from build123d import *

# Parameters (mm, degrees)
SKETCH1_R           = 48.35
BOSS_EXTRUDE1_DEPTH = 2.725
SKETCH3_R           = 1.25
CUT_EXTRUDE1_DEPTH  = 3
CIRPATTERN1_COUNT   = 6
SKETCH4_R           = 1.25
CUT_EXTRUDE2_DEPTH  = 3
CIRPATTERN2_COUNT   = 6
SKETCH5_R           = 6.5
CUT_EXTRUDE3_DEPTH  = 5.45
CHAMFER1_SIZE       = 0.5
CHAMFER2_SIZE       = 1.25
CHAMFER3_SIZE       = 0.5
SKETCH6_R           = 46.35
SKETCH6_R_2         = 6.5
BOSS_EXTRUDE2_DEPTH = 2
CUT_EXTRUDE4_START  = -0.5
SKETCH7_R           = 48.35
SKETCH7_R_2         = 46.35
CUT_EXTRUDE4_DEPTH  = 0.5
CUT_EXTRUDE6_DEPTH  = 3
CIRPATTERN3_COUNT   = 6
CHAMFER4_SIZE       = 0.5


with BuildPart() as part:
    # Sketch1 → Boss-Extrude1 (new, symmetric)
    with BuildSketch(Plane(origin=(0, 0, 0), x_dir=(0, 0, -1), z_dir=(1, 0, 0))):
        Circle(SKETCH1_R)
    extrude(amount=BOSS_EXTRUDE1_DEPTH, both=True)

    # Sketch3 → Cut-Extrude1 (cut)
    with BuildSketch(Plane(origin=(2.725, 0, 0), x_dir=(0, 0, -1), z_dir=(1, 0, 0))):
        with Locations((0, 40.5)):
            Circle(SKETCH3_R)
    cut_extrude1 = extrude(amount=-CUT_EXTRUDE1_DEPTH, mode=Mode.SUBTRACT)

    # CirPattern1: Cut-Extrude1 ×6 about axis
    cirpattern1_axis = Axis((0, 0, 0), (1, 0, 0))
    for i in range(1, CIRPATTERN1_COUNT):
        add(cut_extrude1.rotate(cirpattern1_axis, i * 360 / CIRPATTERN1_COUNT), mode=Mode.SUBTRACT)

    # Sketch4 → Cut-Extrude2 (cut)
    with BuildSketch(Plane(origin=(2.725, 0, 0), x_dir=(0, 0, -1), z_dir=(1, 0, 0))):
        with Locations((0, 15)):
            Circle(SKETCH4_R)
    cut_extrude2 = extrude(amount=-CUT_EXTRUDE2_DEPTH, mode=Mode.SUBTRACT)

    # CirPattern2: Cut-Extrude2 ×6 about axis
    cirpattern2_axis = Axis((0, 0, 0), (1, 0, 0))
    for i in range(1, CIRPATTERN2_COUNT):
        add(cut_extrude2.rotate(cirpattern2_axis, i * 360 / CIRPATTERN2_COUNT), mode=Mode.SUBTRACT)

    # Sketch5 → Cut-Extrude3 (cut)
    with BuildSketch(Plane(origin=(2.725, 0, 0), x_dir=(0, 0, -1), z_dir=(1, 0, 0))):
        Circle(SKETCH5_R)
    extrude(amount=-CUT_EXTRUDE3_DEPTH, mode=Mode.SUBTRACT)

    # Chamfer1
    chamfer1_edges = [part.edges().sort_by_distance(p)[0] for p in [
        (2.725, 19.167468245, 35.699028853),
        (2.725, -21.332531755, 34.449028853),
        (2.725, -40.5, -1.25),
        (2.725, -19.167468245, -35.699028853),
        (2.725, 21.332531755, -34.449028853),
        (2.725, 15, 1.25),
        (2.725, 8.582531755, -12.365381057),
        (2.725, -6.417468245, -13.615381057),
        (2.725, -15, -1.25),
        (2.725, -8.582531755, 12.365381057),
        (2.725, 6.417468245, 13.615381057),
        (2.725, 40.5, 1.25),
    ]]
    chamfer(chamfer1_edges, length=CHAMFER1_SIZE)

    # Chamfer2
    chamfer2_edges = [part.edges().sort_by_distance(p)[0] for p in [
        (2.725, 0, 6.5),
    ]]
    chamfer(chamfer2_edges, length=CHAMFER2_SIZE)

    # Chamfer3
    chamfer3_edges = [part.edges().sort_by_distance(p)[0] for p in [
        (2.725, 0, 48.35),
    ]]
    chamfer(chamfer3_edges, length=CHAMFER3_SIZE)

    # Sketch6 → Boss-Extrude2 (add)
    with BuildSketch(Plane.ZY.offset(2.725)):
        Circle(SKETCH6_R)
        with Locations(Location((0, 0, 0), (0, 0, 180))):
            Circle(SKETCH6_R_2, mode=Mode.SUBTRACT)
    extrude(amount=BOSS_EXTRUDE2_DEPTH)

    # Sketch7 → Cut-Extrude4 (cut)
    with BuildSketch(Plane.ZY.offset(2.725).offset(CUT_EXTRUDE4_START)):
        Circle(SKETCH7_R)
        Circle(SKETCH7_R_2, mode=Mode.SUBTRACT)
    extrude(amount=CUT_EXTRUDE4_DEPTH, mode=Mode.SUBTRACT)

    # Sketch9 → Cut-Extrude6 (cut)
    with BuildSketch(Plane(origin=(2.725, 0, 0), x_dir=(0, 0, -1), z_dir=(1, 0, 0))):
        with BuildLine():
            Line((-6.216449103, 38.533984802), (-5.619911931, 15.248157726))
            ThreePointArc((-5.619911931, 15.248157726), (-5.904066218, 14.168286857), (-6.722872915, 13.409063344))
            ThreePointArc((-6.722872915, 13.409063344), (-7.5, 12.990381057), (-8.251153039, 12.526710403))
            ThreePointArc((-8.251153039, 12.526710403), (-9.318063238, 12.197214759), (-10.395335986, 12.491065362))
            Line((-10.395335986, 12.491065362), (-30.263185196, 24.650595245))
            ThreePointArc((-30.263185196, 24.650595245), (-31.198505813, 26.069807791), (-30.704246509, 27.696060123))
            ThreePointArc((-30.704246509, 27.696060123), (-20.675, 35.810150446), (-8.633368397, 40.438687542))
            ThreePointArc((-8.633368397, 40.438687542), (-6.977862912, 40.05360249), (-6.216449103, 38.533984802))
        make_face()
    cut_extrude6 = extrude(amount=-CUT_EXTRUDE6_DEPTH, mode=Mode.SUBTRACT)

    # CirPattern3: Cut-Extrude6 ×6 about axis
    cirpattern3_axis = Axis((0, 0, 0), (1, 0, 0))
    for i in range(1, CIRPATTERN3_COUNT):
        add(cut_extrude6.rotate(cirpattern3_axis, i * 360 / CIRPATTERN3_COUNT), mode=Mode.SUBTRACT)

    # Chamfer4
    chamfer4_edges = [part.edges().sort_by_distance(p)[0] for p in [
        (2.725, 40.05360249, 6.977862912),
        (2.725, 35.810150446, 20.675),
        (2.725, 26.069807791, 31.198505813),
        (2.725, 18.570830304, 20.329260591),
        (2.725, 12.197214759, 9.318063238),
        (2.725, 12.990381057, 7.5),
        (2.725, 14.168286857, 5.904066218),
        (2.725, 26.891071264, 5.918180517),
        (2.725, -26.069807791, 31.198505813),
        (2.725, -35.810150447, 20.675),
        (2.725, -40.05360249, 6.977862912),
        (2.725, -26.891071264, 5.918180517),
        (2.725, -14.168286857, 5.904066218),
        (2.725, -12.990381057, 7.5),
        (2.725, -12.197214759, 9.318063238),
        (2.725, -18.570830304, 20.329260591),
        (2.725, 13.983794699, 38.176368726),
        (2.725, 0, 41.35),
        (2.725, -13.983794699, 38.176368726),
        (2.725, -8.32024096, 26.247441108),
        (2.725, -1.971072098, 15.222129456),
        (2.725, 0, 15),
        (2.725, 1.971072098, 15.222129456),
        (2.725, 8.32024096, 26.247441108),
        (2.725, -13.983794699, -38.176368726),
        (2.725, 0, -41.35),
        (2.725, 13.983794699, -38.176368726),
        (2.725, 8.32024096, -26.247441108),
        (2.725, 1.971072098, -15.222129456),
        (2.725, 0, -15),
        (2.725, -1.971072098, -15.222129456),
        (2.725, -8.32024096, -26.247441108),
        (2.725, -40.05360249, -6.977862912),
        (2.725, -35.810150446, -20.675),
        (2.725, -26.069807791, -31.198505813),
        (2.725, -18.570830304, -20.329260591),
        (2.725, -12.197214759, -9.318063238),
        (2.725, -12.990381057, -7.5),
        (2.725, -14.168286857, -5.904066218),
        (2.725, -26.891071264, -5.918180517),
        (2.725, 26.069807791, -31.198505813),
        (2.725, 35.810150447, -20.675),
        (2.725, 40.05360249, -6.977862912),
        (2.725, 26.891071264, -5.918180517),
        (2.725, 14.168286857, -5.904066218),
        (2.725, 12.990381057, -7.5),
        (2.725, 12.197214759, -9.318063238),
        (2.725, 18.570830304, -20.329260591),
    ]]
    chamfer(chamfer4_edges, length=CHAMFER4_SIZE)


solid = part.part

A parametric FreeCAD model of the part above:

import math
import FreeCAD as App
import Part
import Sketcher
from FreeCAD import Vector
Q = App.Units.Quantity


def edges_at(feature, points):
    """Names of the edges that pass closest to the given points."""
    edges = feature.Shape.Edges
    near = lambda p: min(range(len(edges)), key=lambda i: edges[i].distToShape(Part.Vertex(*p))[0])
    return sorted({f"Edge{near(p) + 1}" for p in points})

doc = App.newDocument("Part")
body = doc.addObject("PartDesign::Body", "Body")

# Sketch on YZ plane
sketch1 = body.newObject("Sketcher::SketchObject", "Sketch")
sketch1.AttachmentSupport = (doc.getObject("YZ_Plane"), [""])
sketch1.MapMode = "FlatFace"
sketch1.addGeometry(Part.Circle(Vector(0, 0, 0), Vector(0, 0, 1), 48), False)
sketch1.addConstraint(Sketcher.Constraint("Coincident", 0, 3, -1, 1))
sketch1.addConstraint(Sketcher.Constraint("Diameter", 0, Q("96.7 mm")))
pad1 = body.newObject("PartDesign::Pad", "Pad")
pad1.Profile = sketch1
pad1.Length = 5.45
pad1.Midplane = True

# Sketch on YZ plane
sketch2 = body.newObject("Sketcher::SketchObject", "Sketch001")
sketch2.AttachmentSupport = (doc.getObject("YZ_Plane"), [""])
sketch2.MapMode = "FlatFace"
sketch2.AttachmentOffset = App.Placement(Vector(0, 0, 2.725), App.Rotation())
sketch2.addGeometry(Part.Circle(Vector(40.5, 0, 0), Vector(0, 0, 1), 1.2), False)
sketch2.addConstraint(Sketcher.Constraint("PointOnObject", 0, 3, -1))
sketch2.addConstraint(Sketcher.Constraint("Diameter", 0, Q("2.5 mm")))
sketch2.addConstraint(Sketcher.Constraint("DistanceX", -1, 1, 0, 3, Q("40.5 mm")))
pocket1 = body.newObject("PartDesign::Pocket", "Pocket")
pocket1.Profile = sketch2
pocket1.Length = 3
doc.recompute()

polarpattern = body.newObject("PartDesign::PolarPattern", "PolarPattern")
polarpattern.Originals = [pocket1]
polarpattern.Axis = (doc.getObject("X_Axis"), [""])
polarpattern.Angle = 360
polarpattern.Occurrences = 6
body.Tip = polarpattern

# Sketch on YZ plane
sketch3 = body.newObject("Sketcher::SketchObject", "Sketch002")
sketch3.AttachmentSupport = (doc.getObject("YZ_Plane"), [""])
sketch3.MapMode = "FlatFace"
sketch3.AttachmentOffset = App.Placement(Vector(0, 0, 2.725), App.Rotation())
sketch3.addGeometry(Part.Circle(Vector(15, 0, 0), Vector(0, 0, 1), 1.2), False)
sketch3.addConstraint(Sketcher.Constraint("PointOnObject", 0, 3, -1))
sketch3.addConstraint(Sketcher.Constraint("Diameter", 0, Q("2.5 mm")))
sketch3.addConstraint(Sketcher.Constraint("DistanceX", -1, 1, 0, 3, Q("15 mm")))
pocket2 = body.newObject("PartDesign::Pocket", "Pocket001")
pocket2.Profile = sketch3
pocket2.Length = 3
doc.recompute()

polarpattern2 = body.newObject("PartDesign::PolarPattern", "PolarPattern001")
polarpattern2.Originals = [pocket2]
polarpattern2.Axis = (doc.getObject("X_Axis"), [""])
polarpattern2.Angle = 360
polarpattern2.Occurrences = 6
body.Tip = polarpattern2

# Sketch on YZ plane
sketch4 = body.newObject("Sketcher::SketchObject", "Sketch003")
sketch4.AttachmentSupport = (doc.getObject("YZ_Plane"), [""])
sketch4.MapMode = "FlatFace"
sketch4.AttachmentOffset = App.Placement(Vector(0, 0, 2.725), App.Rotation())
sketch4.addGeometry(Part.Circle(Vector(0, 0, 0), Vector(0, 0, 1), 6), False)
sketch4.addConstraint(Sketcher.Constraint("Coincident", 0, 3, -1, 1))
sketch4.addConstraint(Sketcher.Constraint("Diameter", 0, Q("13 mm")))
pocket3 = body.newObject("PartDesign::Pocket", "Pocket002")
pocket3.Profile = sketch4
pocket3.Length = 5.45
doc.recompute()

chamfer = body.newObject("PartDesign::Chamfer", "Chamfer")
chamfer.Base = (pocket3, edges_at(pocket3, [
    (2.725, 19.167, 35.699),
    (2.725, -21.333, 34.449),
    (2.725, -40.5, -1.25),
    (2.725, -19.167, -35.699),
    (2.725, 21.333, -34.449),
    (2.725, 15, 1.25),
    (2.725, 8.583, -12.365),
    (2.725, -6.417, -13.615),
    (2.725, -15, -1.25),
    (2.725, -8.583, 12.365),
    (2.725, 6.417, 13.615),
    (2.725, 40.5, 1.25),
]))
chamfer.Size = 0.5
doc.recompute()

chamfer2 = body.newObject("PartDesign::Chamfer", "Chamfer001")
chamfer2.Base = (chamfer, edges_at(chamfer, [(2.725, 0, 6.5)]))
chamfer2.Size = 1.25
doc.recompute()

chamfer3 = body.newObject("PartDesign::Chamfer", "Chamfer002")
chamfer3.Base = (chamfer2, edges_at(chamfer2, [(2.725, 0, 48.35)]))
chamfer3.Size = 0.5

# Sketch on YZ plane
sketch5 = body.newObject("Sketcher::SketchObject", "Sketch004")
sketch5.AttachmentSupport = (doc.getObject("YZ_Plane"), [""])
sketch5.MapMode = "FlatFace"
sketch5.AttachmentOffset = App.Placement(Vector(0, 0, -2.725), App.Rotation())
sketch5.addGeometry(Part.Circle(Vector(0, 0, 0), Vector(0, 0, 1), 46), False)
sketch5.addGeometry(Part.Circle(Vector(0, 0, 0), Vector(0, 0, 1), 6), False)
sketch5.addConstraint(Sketcher.Constraint("Coincident", 0, 3, -1, 1))
sketch5.addConstraint(Sketcher.Constraint("Coincident", 1, 3, -1, 1))
sketch5.addConstraint(Sketcher.Constraint("Diameter", 1, Q("13 mm")))
sketch5.addConstraint(Sketcher.Constraint("Diameter", 0, Q("92.7 mm")))
pad2 = body.newObject("PartDesign::Pad", "Pad001")
pad2.Profile = sketch5
pad2.Length = 2
pad2.Reversed = True

# Sketch on YZ plane
sketch6 = body.newObject("Sketcher::SketchObject", "Sketch005")
sketch6.AttachmentSupport = (doc.getObject("YZ_Plane"), [""])
sketch6.MapMode = "FlatFace"
sketch6.AttachmentOffset = App.Placement(Vector(0, 0, -2.225), App.Rotation())
sketch6.addGeometry(Part.Circle(Vector(0, 0, 0), Vector(0, 0, 1), 48), False)
sketch6.addGeometry(Part.Circle(Vector(0, 0, 0), Vector(0, 0, 1), 46), False)
sketch6.addConstraint(Sketcher.Constraint("Coincident", 0, 3, -1, 1))
sketch6.addConstraint(Sketcher.Constraint("Coincident", 1, 3, -1, 1))
sketch6.addConstraint(Sketcher.Constraint("Diameter", 0, Q("96.7 mm")))
sketch6.addConstraint(Sketcher.Constraint("Diameter", 1, Q("92.7 mm")))
pocket4 = body.newObject("PartDesign::Pocket", "Pocket003")
pocket4.Profile = sketch6
pocket4.Length = 0.5

# Sketch on YZ plane
sketch7 = body.newObject("Sketcher::SketchObject", "Sketch006")
sketch7.AttachmentSupport = (doc.getObject("YZ_Plane"), [""])
sketch7.MapMode = "FlatFace"
sketch7.AttachmentOffset = App.Placement(Vector(0, 0, 2.725), App.Rotation())
sketch7.addGeometry(Part.LineSegment(Vector(15.2, 5.6, 0), Vector(38.5, 6.2, 0)), False)
sketch7.addGeometry(Part.ArcOfCircle(Part.Circle(Vector(38.5, 8.2, 0), Vector(0, 0, 1), 2), math.radians(-89), math.radians(12)), False)
sketch7.addGeometry(Part.ArcOfCircle(Part.Circle(Vector(0, 0, 0), Vector(0, 0, 1), 41.4), math.radians(12), math.radians(48)), False)
sketch7.addGeometry(Part.ArcOfCircle(Part.Circle(Vector(26.4, 29.2, 0), Vector(0, 0, 1), 2), math.radians(48), math.radians(149)), False)
sketch7.addGeometry(Part.LineSegment(Vector(24.7, 30.3, 0), Vector(12.5, 10.4, 0)), False)
sketch7.addGeometry(Part.ArcOfCircle(Part.Circle(Vector(14.2, 9.4, 0), Vector(0, 0, 1), 2), math.radians(149), math.radians(213)), False)
sketch7.addGeometry(Part.ArcOfCircle(Part.Circle(Vector(0, 0, 0), Vector(0, 0, 1), 15), math.radians(26.63), math.radians(33.37)), False)
sketch7.addGeometry(Part.ArcOfCircle(Part.Circle(Vector(15.2, 7.6, 0), Vector(0, 0, 1), 2), math.radians(-153), math.radians(-89)), False)
sketch7.addConstraint(Sketcher.Constraint("Tangent", 0, 2, 1, 1))
sketch7.addConstraint(Sketcher.Constraint("Tangent", 1, 2, 2, 1))
sketch7.addConstraint(Sketcher.Constraint("Tangent", 2, 2, 3, 1))
sketch7.addConstraint(Sketcher.Constraint("Tangent", 3, 2, 4, 1))
sketch7.addConstraint(Sketcher.Constraint("Tangent", 4, 2, 5, 1))
sketch7.addConstraint(Sketcher.Constraint("Tangent", 5, 2, 6, 2))
sketch7.addConstraint(Sketcher.Constraint("Tangent", 6, 1, 7, 1))
sketch7.addConstraint(Sketcher.Constraint("Tangent", 7, 2, 0, 1))
sketch7.addConstraint(Sketcher.Constraint("Coincident", 2, 3, -1, 1))
sketch7.addConstraint(Sketcher.Constraint("Coincident", 6, 3, -1, 1))
sketch7.addConstraint(Sketcher.Constraint("Equal", 1, 3))
sketch7.addConstraint(Sketcher.Constraint("Equal", 3, 5))
sketch7.addConstraint(Sketcher.Constraint("Equal", 5, 7))
sketch7.addConstraint(Sketcher.Constraint("Equal", 0, 4))
sketch7.addConstraint(Sketcher.Constraint("Radius", 1, Q("2 mm")))
sketch7.addConstraint(Sketcher.Constraint("Radius", 6, Q("15 mm")))
sketch7.addConstraint(Sketcher.Constraint("Radius", 2, Q("41.35 mm")))
sketch7.addConstraint(Sketcher.Constraint("DistanceX", 5, 3, 7, 3, Q("1 mm")))
sketch7.addConstraint(Sketcher.Constraint("DistanceY", 7, 3, 3, 3, Q("21.5999 mm")))
sketch7.addConstraint(Sketcher.Constraint("DistanceX", -1, 1, 3, 3, Q("26.356468 mm")))
pocket5 = body.newObject("PartDesign::Pocket", "Pocket004")
pocket5.Profile = sketch7
pocket5.Length = 3
doc.recompute()

polarpattern3 = body.newObject("PartDesign::PolarPattern", "PolarPattern002")
polarpattern3.Originals = [pocket5]
polarpattern3.Axis = (doc.getObject("X_Axis"), [""])
polarpattern3.Angle = 360
polarpattern3.Occurrences = 6
body.Tip = polarpattern3
doc.recompute()

chamfer4 = body.newObject("PartDesign::Chamfer", "Chamfer003")
chamfer4.Base = (polarpattern3, edges_at(polarpattern3, [
    (2.725, 40.054, 6.978),
    (2.725, 35.81, 20.675),
    (2.725, 26.07, 31.199),
    (2.725, 18.571, 20.329),
    (2.725, 12.197, 9.318),
    (2.725, 12.99, 7.5),
    (2.725, 14.168, 5.904),
    (2.725, 26.891, 5.918),
    (2.725, -26.07, 31.199),
    (2.725, -35.81, 20.675),
    (2.725, -40.054, 6.978),
    (2.725, -26.891, 5.918),
    (2.725, -14.168, 5.904),
    (2.725, -12.99, 7.5),
    (2.725, -12.197, 9.318),
    (2.725, -18.571, 20.329),
    (2.725, 13.984, 38.176),
    (2.725, 0, 41.35),
    (2.725, -13.984, 38.176),
    (2.725, -8.32, 26.247),
    (2.725, -1.971, 15.222),
    (2.725, 0, 15),
    (2.725, 1.971, 15.222),
    (2.725, 8.32, 26.247),
    (2.725, -13.984, -38.176),
    (2.725, 0, -41.35),
    (2.725, 13.984, -38.176),
    (2.725, 8.32, -26.247),
    (2.725, 1.971, -15.222),
    (2.725, 0, -15),
    (2.725, -1.971, -15.222),
    (2.725, -8.32, -26.247),
    (2.725, -40.054, -6.978),
    (2.725, -35.81, -20.675),
    (2.725, -26.07, -31.199),
    (2.725, -18.571, -20.329),
    (2.725, -12.197, -9.318),
    (2.725, -12.99, -7.5),
    (2.725, -14.168, -5.904),
    (2.725, -26.891, -5.918),
    (2.725, 26.07, -31.199),
    (2.725, 35.81, -20.675),
    (2.725, 40.054, -6.978),
    (2.725, 26.891, -5.918),
    (2.725, 14.168, -5.904),
    (2.725, 12.99, -7.5),
    (2.725, 12.197, -9.318),
    (2.725, 18.571, -20.329),
]))
chamfer4.Size = 0.5

doc.recompute()
